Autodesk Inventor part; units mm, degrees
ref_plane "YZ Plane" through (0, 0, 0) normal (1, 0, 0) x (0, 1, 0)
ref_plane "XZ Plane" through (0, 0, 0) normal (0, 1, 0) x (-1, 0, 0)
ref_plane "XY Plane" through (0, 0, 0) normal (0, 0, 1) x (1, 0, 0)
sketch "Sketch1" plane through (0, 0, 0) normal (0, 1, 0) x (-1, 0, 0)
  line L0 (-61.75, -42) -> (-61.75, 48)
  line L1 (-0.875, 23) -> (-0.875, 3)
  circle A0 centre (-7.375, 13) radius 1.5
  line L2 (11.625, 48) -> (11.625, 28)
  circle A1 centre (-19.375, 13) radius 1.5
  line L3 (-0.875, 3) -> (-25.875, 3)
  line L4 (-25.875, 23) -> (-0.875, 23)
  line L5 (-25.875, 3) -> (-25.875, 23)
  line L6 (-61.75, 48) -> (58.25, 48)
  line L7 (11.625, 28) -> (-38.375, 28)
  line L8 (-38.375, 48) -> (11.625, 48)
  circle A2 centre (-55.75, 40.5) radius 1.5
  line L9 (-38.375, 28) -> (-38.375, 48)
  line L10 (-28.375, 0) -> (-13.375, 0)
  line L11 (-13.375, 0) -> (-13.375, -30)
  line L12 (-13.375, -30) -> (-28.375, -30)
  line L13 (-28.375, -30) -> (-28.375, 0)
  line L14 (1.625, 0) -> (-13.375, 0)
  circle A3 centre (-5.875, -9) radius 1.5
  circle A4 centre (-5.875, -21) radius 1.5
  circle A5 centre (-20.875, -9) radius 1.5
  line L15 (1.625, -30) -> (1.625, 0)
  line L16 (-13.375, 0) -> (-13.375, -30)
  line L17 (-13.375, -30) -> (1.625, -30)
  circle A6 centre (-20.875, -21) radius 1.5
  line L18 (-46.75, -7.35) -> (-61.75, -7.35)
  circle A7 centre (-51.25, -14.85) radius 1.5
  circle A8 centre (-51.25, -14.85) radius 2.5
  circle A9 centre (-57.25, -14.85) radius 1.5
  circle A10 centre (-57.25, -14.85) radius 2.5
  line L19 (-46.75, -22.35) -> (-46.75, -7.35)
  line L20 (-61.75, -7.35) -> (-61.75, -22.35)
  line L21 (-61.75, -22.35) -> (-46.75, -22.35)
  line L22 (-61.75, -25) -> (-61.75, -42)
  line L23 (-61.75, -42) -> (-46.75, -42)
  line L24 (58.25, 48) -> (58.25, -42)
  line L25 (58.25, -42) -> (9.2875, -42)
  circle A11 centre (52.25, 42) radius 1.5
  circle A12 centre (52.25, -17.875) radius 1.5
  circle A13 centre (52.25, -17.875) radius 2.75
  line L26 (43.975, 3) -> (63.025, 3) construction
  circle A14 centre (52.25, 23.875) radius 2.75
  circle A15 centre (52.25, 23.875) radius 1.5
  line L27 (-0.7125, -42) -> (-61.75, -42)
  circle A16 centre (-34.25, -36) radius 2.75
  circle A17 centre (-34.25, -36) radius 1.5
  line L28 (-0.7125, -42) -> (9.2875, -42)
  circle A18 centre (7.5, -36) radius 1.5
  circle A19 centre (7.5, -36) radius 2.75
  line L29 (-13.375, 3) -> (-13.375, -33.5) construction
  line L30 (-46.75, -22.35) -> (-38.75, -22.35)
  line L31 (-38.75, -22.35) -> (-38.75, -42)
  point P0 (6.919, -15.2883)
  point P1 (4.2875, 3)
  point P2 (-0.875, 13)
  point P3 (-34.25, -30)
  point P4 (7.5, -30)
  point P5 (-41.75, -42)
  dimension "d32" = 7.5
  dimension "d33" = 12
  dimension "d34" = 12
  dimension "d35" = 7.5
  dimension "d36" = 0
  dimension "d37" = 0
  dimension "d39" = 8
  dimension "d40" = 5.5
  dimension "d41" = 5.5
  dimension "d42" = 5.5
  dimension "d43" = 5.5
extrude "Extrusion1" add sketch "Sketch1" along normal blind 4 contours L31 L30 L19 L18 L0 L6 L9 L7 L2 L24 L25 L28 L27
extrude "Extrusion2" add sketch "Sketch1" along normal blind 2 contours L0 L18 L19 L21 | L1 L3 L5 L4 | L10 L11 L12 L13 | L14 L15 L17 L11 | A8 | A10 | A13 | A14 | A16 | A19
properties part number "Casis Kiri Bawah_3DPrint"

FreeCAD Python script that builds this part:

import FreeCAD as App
import Part
import Sketcher

V = App.Vector
Q = App.Units.Quantity

doc = App.newDocument("Part")
params = doc.addObject("Spreadsheet::Sheet", "Params")
for row, (alias, value) in enumerate([
    ("sketch1_diameter", "5.5 mm"),
    ("sketch1_width", "8 mm"),
    ("sketch1_diameter2", "3 mm"),
    ("sketch1_width2", "97 mm"),
    ("sketch1_width3", "50 mm"),
    ("pad1_length", "4 mm"),
    ("sketch2_diameter", "5.5 mm"),
    ("sketch2_diameter2", "3 mm"),
    ("sketch2_width", "25 mm"),
    ("sketch2_width2", "30 mm"),
    ("sketch2_height", "20 mm"),
    ("pad2_length", "2 mm"),
], start=1):
    params.set(f"A{row}", alias)
    params.set(f"B{row}", "=" + value)
    params.setAlias(f"B{row}", alias)

body = doc.addObject("PartDesign::Body", "Body")

# Sketch on XZ plane
sketch1 = doc.addObject("Sketcher::SketchObject", "Sketch")
body.addObject(sketch1)
sketch1.AttachmentSupport = (doc.XZ_Plane, [""])
sketch1.MapMode = "FlatFace"
sketch1.addGeometry([
    Part.LineSegment(V(38.8, -22.4, 0), V(38.8, -42, 0)),  # 0
    Part.LineSegment(V(38.8, -42, 0), V(-58.2, -42, 0)),  # 1
    Part.LineSegment(V(-58.2, -42, 0), V(-58.2, 48, 0)),  # 2
    Part.LineSegment(V(-58.2, 48, 0), V(-11.6, 48, 0)),  # 3
    Part.LineSegment(V(-11.6, 48, 0), V(-11.6, 28, 0)),  # 4
    Part.LineSegment(V(-11.6, 28, 0), V(38.4, 28, 0)),  # 5
    Part.LineSegment(V(38.4, 28, 0), V(38.4, 48, 0)),  # 6
    Part.LineSegment(V(38.4, 48, 0), V(61.8, 48, 0)),  # 7
    Part.LineSegment(V(61.8, 48, 0), V(61.8, -7.3, 0)),  # 8
    Part.LineSegment(V(61.8, -7.3, 0), V(46.8, -7.3, 0)),  # 9
    Part.LineSegment(V(46.8, -7.3, 0), V(46.8, -22.4, 0)),  # 10
    Part.LineSegment(V(46.8, -22.4, 0), V(38.8, -22.4, 0)),  # 11
    Part.Circle(V(34.2, -36, 0), V(0, 0, 1), 2.8),  # 12
    Part.LineSegment(V(28.4, -30, 0), V(28.4, 0, 0)),  # 13
    Part.LineSegment(V(28.4, 0, 0), V(-1.6, 0, 0)),  # 14
    Part.LineSegment(V(-1.6, 0, 0), V(-1.6, -30, 0)),  # 15
    Part.LineSegment(V(-1.6, -30, 0), V(28.4, -30, 0)),  # 16
    Part.Circle(V(-7.5, -36, 0), V(0, 0, 1), 2.8),  # 17
    Part.Circle(V(-52.2, -17.9, 0), V(0, 0, 1), 2.8),  # 18
    Part.LineSegment(V(25.9, 23, 0), V(0.9, 23, 0)),  # 19
    Part.LineSegment(V(0.9, 23, 0), V(0.9, 3, 0)),  # 20
    Part.LineSegment(V(0.9, 3, 0), V(25.9, 3, 0)),  # 21
    Part.LineSegment(V(25.9, 3, 0), V(25.9, 23, 0)),  # 22
    Part.Circle(V(55.8, 40.5, 0), V(0, 0, 1), 1.5),  # 23
    Part.Circle(V(-52.2, 23.9, 0), V(0, 0, 1), 2.8),  # 24
    Part.Circle(V(-52.2, 42, 0), V(0, 0, 1), 1.5),  # 25
], False)
sketch1.addConstraint([
    Sketcher.Constraint("Coincident", 0, 2, 1, 1),
    Sketcher.Constraint("Coincident", 1, 2, 2, 1),
    Sketcher.Constraint("Coincident", 2, 2, 3, 1),
    Sketcher.Constraint("Coincident", 3, 2, 4, 1),
    Sketcher.Constraint("Coincident", 4, 2, 5, 1),
    Sketcher.Constraint("Coincident", 5, 2, 6, 1),
    Sketcher.Constraint("Coincident", 6, 2, 7, 1),
    Sketcher.Constraint("Coincident", 7, 2, 8, 1),
    Sketcher.Constraint("Coincident", 8, 2, 9, 1),
    Sketcher.Constraint("Coincident", 9, 2, 10, 1),
    Sketcher.Constraint("Coincident", 10, 2, 11, 1),
    Sketcher.Constraint("Coincident", 11, 2, 0, 1),
    Sketcher.Constraint("Coincident", 13, 2, 14, 1),
    Sketcher.Constraint("Coincident", 14, 2, 15, 1),
    Sketcher.Constraint("Coincident", 15, 2, 16, 1),
    Sketcher.Constraint("Coincident", 16, 2, 13, 1),
    Sketcher.Constraint("Coincident", 19, 2, 20, 1),
    Sketcher.Constraint("Coincident", 20, 2, 21, 1),
    Sketcher.Constraint("Coincident", 21, 2, 22, 1),
    Sketcher.Constraint("Coincident", 22, 2, 19, 1),
    Sketcher.Constraint("Vertical", 0),
    Sketcher.Constraint("Horizontal", 1),
    Sketcher.Constraint("Vertical", 2),
    Sketcher.Constraint("Horizontal", 3),
    Sketcher.Constraint("Vertical", 4),
    Sketcher.Constraint("Horizontal", 5),
    Sketcher.Constraint("Vertical", 6),
    Sketcher.Constraint("Horizontal", 7),
    Sketcher.Constraint("Vertical", 8),
    Sketcher.Constraint("Horizontal", 9),
    Sketcher.Constraint("Vertical", 10),
    Sketcher.Constraint("Horizontal", 11),
    Sketcher.Constraint("Vertical", 13),
    Sketcher.Constraint("Horizontal", 14),
    Sketcher.Constraint("Vertical", 15),
    Sketcher.Constraint("Horizontal", 16),
    Sketcher.Constraint("Horizontal", 19),
    Sketcher.Constraint("Vertical", 20),
    Sketcher.Constraint("Horizontal", 21),
    Sketcher.Constraint("Vertical", 22),
    Sketcher.Constraint("Equal", 12, 17),
    Sketcher.Constraint("Equal", 17, 18),
    Sketcher.Constraint("Equal", 18, 24),
    Sketcher.Constraint("Equal", 23, 25),
    Sketcher.Constraint("PointOnObject", 13, 2, -1),
    Sketcher.Constraint("Horizontal", 12, 3, 17, 3),
    Sketcher.Constraint("Horizontal", 3, 2, 6, 2),
    Sketcher.Constraint("Vertical", 18, 3, 24, 3),
    Sketcher.Constraint("Vertical", 24, 3, 25, 3),
    Sketcher.Constraint("Equal", 9, 10),
    Sketcher.Constraint("Equal", 16, 13),
    Sketcher.Constraint("Equal", 6, 20),
    Sketcher.Constraint("Diameter", 12, Q("5.5 mm")),
    Sketcher.Constraint("DistanceX", 11, 2, 11, 1, Q("8 mm")),
    Sketcher.Constraint("Diameter", 23, Q("3 mm")),
    Sketcher.Constraint("DistanceY", 0, 2, 15, 2, Q("12 mm")),
    Sketcher.Constraint("DistanceX", 17, 3, -1, 1, Q("7.5 mm")),
    Sketcher.Constraint("DistanceY", 23, 3, 3, 2, Q("7.5 mm")),
    Sketcher.Constraint("DistanceX", 1, 2, 1, 1, Q("97 mm")),
    Sketcher.Constraint("DistanceX", 5, 1, 5, 2, Q("50 mm")),
    Sketcher.Constraint("DistanceX", 9, 2, 9, 1, Q("15 mm")),
    Sketcher.Constraint("DistanceX", 14, 2, 14, 1, Q("30 mm")),
    Sketcher.Constraint("DistanceX", 19, 2, 19, 1, Q("25 mm")),
    Sketcher.Constraint("DistanceY", 2, 1, 2, 2, Q("90 mm")),
    Sketcher.Constraint("DistanceY", 4, 2, 4, 1, Q("20 mm")),
    Sketcher.Constraint("DistanceY", 12, 3, -1, 1, Q("36 mm")),
    Sketcher.Constraint("DistanceY", -1, 1, 25, 3, Q("42 mm")),
    Sketcher.Constraint("DistanceY", -1, 1, 19, 2, Q("23 mm")),
    Sketcher.Constraint("DistanceX", 18, 3, 23, 3, Q("108 mm")),
    Sketcher.Constraint("DistanceX", 0, 2, 23, 3, Q("17 mm")),
    Sketcher.Constraint("DistanceX", 13, 2, 5, 2, Q("10 mm")),
    Sketcher.Constraint("DistanceY", 0, 2, 0, 1, Q("19.65 mm")),
    Sketcher.Constraint("DistanceX", 18, 3, 12, 3, Q("86.5 mm")),
    Sketcher.Constraint("DistanceX", 4, 2, 19, 2, Q("12.5 mm")),
    Sketcher.Constraint("DistanceX", 3, 1, 3, 2, Q("46.625 mm")),
    Sketcher.Constraint("DistanceX", -1, 1, 12, 3, Q("34.25 mm")),
    Sketcher.Constraint("DistanceY", 18, 3, 24, 3, Q("41.75 mm")),
    Sketcher.Constraint("DistanceY", 18, 3, -1, 1, Q("17.875 mm")),
])
sketch1.setExpression("Constraints[52]", "Params.sketch1_diameter")
sketch1.setExpression("Constraints[53]", "Params.sketch1_width")
sketch1.setExpression("Constraints[54]", "Params.sketch1_diameter2")
sketch1.setExpression("Constraints[58]", "Params.sketch1_width2")
sketch1.setExpression("Constraints[59]", "Params.sketch1_width3")
pad1 = doc.addObject("PartDesign::Pad", "Pad")
body.addObject(pad1)
pad1.Profile = sketch1
pad1.setExpression("Length", "Params.pad1_length")
pad1.Reversed = True

# Sketch on XZ plane
sketch2 = doc.addObject("Sketcher::SketchObject", "Sketch001")
body.addObject(sketch2)
sketch2.AttachmentSupport = (doc.XZ_Plane, [""])
sketch2.MapMode = "FlatFace"
sketch2.addGeometry([
    Part.LineSegment(V(61.8, -7.3, 0), V(61.8, -22.4, 0)),  # 0
    Part.LineSegment(V(61.8, -22.4, 0), V(46.8, -22.4, 0)),  # 1
    Part.LineSegment(V(46.8, -22.4, 0), V(46.8, -7.3, 0)),  # 2
    Part.LineSegment(V(46.8, -7.3, 0), V(61.8, -7.3, 0)),  # 3
    Part.Circle(V(57.2, -14.8, 0), V(0, 0, 1), 1.5),  # 4
    Part.Circle(V(51.2, -14.8, 0), V(0, 0, 1), 1.5),  # 5
    Part.LineSegment(V(0.9, 3, 0), V(0.9, 23, 0)),  # 6
    Part.LineSegment(V(0.9, 23, 0), V(25.9, 23, 0)),  # 7
    Part.LineSegment(V(25.9, 23, 0), V(25.9, 3, 0)),  # 8
    Part.LineSegment(V(25.9, 3, 0), V(0.9, 3, 0)),  # 9
    Part.Circle(V(19.4, 13, 0), V(0, 0, 1), 1.5),  # 10
    Part.Circle(V(7.4, 13, 0), V(0, 0, 1), 1.5),  # 11
    Part.LineSegment(V(28.4, 0, 0), V(28.4, -30, 0)),  # 12
    Part.LineSegment(V(28.4, -30, 0), V(-1.6, -30, 0)),  # 13
    Part.LineSegment(V(-1.6, -30, 0), V(-1.6, 0, 0)),  # 14
    Part.LineSegment(V(-1.6, 0, 0), V(28.4, 0, 0)),  # 15
    Part.Circle(V(20.9, -21, 0), V(0, 0, 1), 1.5),  # 16
    Part.Circle(V(20.9, -9, 0), V(0, 0, 1), 1.5),  # 17
    Part.Circle(V(5.9, -9, 0), V(0, 0, 1), 1.5),  # 18
    Part.Circle(V(5.9, -21, 0), V(0, 0, 1), 1.5),  # 19
    Part.Circle(V(-52.2, -17.9, 0), V(0, 0, 1), 2.8),  # 20
    Part.Circle(V(-52.2, -17.9, 0), V(0, 0, 1), 1.5),  # 21
    Part.Circle(V(-52.2, 23.9, 0), V(0, 0, 1), 2.8),  # 22
    Part.Circle(V(-52.2, 23.9, 0), V(0, 0, 1), 1.5),  # 23
    Part.Circle(V(34.2, -36, 0), V(0, 0, 1), 2.8),  # 24
    Part.Circle(V(34.2, -36, 0), V(0, 0, 1), 1.5),  # 25
    Part.Circle(V(-7.5, -36, 0), V(0, 0, 1), 2.8),  # 26
    Part.Circle(V(-7.5, -36, 0), V(0, 0, 1), 1.5),  # 27
], False)
sketch2.addConstraint([
    Sketcher.Constraint("Coincident", 0, 2, 1, 1),
    Sketcher.Constraint("Coincident", 1, 2, 2, 1),
    Sketcher.Constraint("Coincident", 2, 2, 3, 1),
    Sketcher.Constraint("Coincident", 3, 2, 0, 1),
    Sketcher.Constraint("Coincident", 6, 2, 7, 1),
    Sketcher.Constraint("Coincident", 7, 2, 8, 1),
    Sketcher.Constraint("Coincident", 8, 2, 9, 1),
    Sketcher.Constraint("Coincident", 9, 2, 6, 1),
    Sketcher.Constraint("Coincident", 12, 2, 13, 1),
    Sketcher.Constraint("Coincident", 13, 2, 14, 1),
    Sketcher.Constraint("Coincident", 14, 2, 15, 1),
    Sketcher.Constraint("Coincident", 15, 2, 12, 1),
    Sketcher.Constraint("Vertical", 0),
    Sketcher.Constraint("Horizontal", 1),
    Sketcher.Constraint("Vertical", 2),
    Sketcher.Constraint("Horizontal", 3),
    Sketcher.Constraint("Vertical", 6),
    Sketcher.Constraint("Horizontal", 7),
    Sketcher.Constraint("Vertical", 8),
    Sketcher.Constraint("Horizontal", 9),
    Sketcher.Constraint("Vertical", 12),
    Sketcher.Constraint("Horizontal", 13),
    Sketcher.Constraint("Vertical", 14),
    Sketcher.Constraint("Horizontal", 15),
    Sketcher.Constraint("Coincident", 21, 3, 20, 3),
    Sketcher.Constraint("Coincident", 23, 3, 22, 3),
    Sketcher.Constraint("Coincident", 25, 3, 24, 3),
    Sketcher.Constraint("Coincident", 27, 3, 26, 3),
    Sketcher.Constraint("Equal", 4, 5),
    Sketcher.Constraint("Equal", 5, 10),
    Sketcher.Constraint("Equal", 10, 11),
    Sketcher.Constraint("Equal", 11, 16),
    Sketcher.Constraint("Equal", 16, 17),
    Sketcher.Constraint("Equal", 17, 18),
    Sketcher.Constraint("Equal", 18, 19),
    Sketcher.Constraint("Equal", 19, 21),
    Sketcher.Constraint("Equal", 20, 22),
    Sketcher.Constraint("Equal", 21, 23),
    Sketcher.Constraint("Equal", 22, 24),
    Sketcher.Constraint("Equal", 23, 25),
    Sketcher.Constraint("Equal", 24, 26),
    Sketcher.Constraint("Equal", 25, 27),
    Sketcher.Constraint("PointOnObject", 14, 2, -1),
    Sketcher.Constraint("Horizontal", 4, 3, 5, 3),
    Sketcher.Constraint("Horizontal", 10, 3, 11, 3),
    Sketcher.Constraint("Horizontal", 17, 3, 18, 3),
    Sketcher.Constraint("Horizontal", 16, 3, 19, 3),
    Sketcher.Constraint("Horizontal", 25, 3, 26, 3),
    Sketcher.Constraint("Vertical", 16, 3, 17, 3),
    Sketcher.Constraint("Vertical", 18, 3, 19, 3),
    Sketcher.Constraint("Vertical", 21, 3, 22, 3),
    Sketcher.Constraint("Equal", 3, 0),
    Sketcher.Constraint("Equal", 15, 12),
    Sketcher.Constraint("Diameter", 20, Q("5.5 mm")),
    Sketcher.Constraint("Diameter", 4, Q("3 mm")),
    Sketcher.Constraint("DistanceX", 11, 3, 10, 3, Q("12 mm")),
    Sketcher.Constraint("DistanceY", 16, 3, 17, 3, Q("12 mm")),
    Sketcher.Constraint("DistanceY", 17, 3, 8, 2, Q("12 mm")),
    Sketcher.Constraint("DistanceX", 26, 3, -1, 1, Q("7.5 mm")),
    Sketcher.Constraint("DistanceY", 0, 2, 4, 3, Q("7.5 mm")),
    Sketcher.Constraint("DistanceY", 5, 3, 2, 2, Q("7.5 mm")),
    Sketcher.Constraint("DistanceX", 16, 3, 12, 2, Q("7.5 mm")),
    Sketcher.Constraint("DistanceX", 13, 2, 19, 3, Q("7.5 mm")),
    Sketcher.Constraint("DistanceX", 7, 1, 7, 2, Q("25 mm")),
    Sketcher.Constraint("DistanceX", 13, 2, 13, 1, Q("30 mm")),
    Sketcher.Constraint("DistanceY", 6, 1, 6, 2, Q("20 mm")),
    Sketcher.Constraint("DistanceY", -1, 1, 10, 3, Q("13 mm")),
    Sketcher.Constraint("DistanceY", 16, 3, -1, 1, Q("21 mm")),
    Sketcher.Constraint("DistanceY", 24, 3, -1, 1, Q("36 mm")),
    Sketcher.Constraint("DistanceX", 5, 3, 4, 3, Q("6 mm")),
    Sketcher.Constraint("DistanceX", 24, 3, 5, 3, Q("17 mm")),
    Sketcher.Constraint("DistanceX", 6, 2, 18, 3, Q("5 mm")),
    Sketcher.Constraint("DistanceX", 14, 2, 11, 3, Q("9 mm")),
    Sketcher.Constraint("DistanceX", 4, 3, 0, 2, Q("4.5 mm")),
    Sketcher.Constraint("DistanceX", -1, 1, 4, 3, Q("57.25 mm")),
    Sketcher.Constraint("DistanceY", 4, 3, -1, 1, Q("14.85 mm")),
    Sketcher.Constraint("DistanceX", 20, 3, -1, 1, Q("52.25 mm")),
    Sketcher.Constraint("DistanceY", 20, 3, 22, 3, Q("41.75 mm")),
    Sketcher.Constraint("DistanceX", -1, 1, 10, 3, Q("19.375 mm")),
    Sketcher.Constraint("DistanceY", 20, 3, -1, 1, Q("17.875 mm")),
])
sketch2.setExpression("Constraints[53]", "Params.sketch2_diameter")
sketch2.setExpression("Constraints[54]", "Params.sketch2_diameter2")
sketch2.setExpression("Constraints[63]", "Params.sketch2_width")
sketch2.setExpression("Constraints[64]", "Params.sketch2_width2")
sketch2.setExpression("Constraints[65]", "Params.sketch2_height")
pad2 = doc.addObject("PartDesign::Pad", "Pad001")
body.addObject(pad2)
pad2.Profile = sketch2
pad2.setExpression("Length", "Params.pad2_length")
pad2.Reversed = True

doc.recompute()
